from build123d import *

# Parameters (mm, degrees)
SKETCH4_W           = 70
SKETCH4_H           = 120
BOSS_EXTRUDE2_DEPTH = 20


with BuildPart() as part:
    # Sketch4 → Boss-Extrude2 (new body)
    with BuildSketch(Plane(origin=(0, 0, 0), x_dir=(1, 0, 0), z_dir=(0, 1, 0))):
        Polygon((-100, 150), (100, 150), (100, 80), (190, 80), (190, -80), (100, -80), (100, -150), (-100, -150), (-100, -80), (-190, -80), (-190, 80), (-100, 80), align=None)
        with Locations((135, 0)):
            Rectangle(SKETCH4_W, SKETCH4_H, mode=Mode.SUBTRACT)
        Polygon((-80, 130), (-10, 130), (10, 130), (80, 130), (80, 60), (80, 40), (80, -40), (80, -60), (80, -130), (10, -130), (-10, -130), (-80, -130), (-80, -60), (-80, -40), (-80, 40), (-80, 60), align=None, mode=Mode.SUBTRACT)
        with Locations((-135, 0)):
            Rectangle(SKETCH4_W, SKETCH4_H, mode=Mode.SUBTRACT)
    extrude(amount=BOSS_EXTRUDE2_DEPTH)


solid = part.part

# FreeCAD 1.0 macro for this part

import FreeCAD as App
import Part
import Sketcher

doc = App.newDocument("Part")
body = doc.addObject("PartDesign::Body", "Body")

sketch1 = body.newObject("Sketcher::SketchObject", "Sketch")
sketch1.AttachmentSupport = (doc.getObject("XZ_Plane"), [""])
sketch1.MapMode = "FlatFace"
sketch1.addGeometry([
    Part.LineSegment(App.Vector(100, -150, 0), App.Vector(-100, -150, 0)),
    Part.LineSegment(App.Vector(-100, -150, 0), App.Vector(-100, -80, 0)),
    Part.LineSegment(App.Vector(-100, -80, 0), App.Vector(-190, -80, 0)),
    Part.LineSegment(App.Vector(-190, -80, 0), App.Vector(-190, 80, 0)),
    Part.LineSegment(App.Vector(-190, 80, 0), App.Vector(-100, 80, 0)),
    Part.LineSegment(App.Vector(-100, 80, 0), App.Vector(-100, 150, 0)),
    Part.LineSegment(App.Vector(-100, 150, 0), App.Vector(100, 150, 0)),
    Part.LineSegment(App.Vector(100, 150, 0), App.Vector(100, 80, 0)),
    Part.LineSegment(App.Vector(100, 80, 0), App.Vector(190, 80, 0)),
    Part.LineSegment(App.Vector(190, 80, 0), App.Vector(190, -80, 0)),
    Part.LineSegment(App.Vector(190, -80, 0), App.Vector(100, -80, 0)),
    Part.LineSegment(App.Vector(100, -80, 0), App.Vector(100, -150, 0)),
    Part.LineSegment(App.Vector(100, 60, 0), App.Vector(100, -60, 0)),
    Part.LineSegment(App.Vector(100, -60, 0), App.Vector(170, -60, 0)),
    Part.LineSegment(App.Vector(170, -60, 0), App.Vector(170, 60, 0)),
    Part.LineSegment(App.Vector(170, 60, 0), App.Vector(100, 60, 0)),
    Part.LineSegment(App.Vector(-80, -130, 0), App.Vector(80, -130, 0)),
    Part.LineSegment(App.Vector(80, -130, 0), App.Vector(80, 130, 0)),
    Part.LineSegment(App.Vector(80, 130, 0), App.Vector(-80, 130, 0)),
    Part.LineSegment(App.Vector(-80, 130, 0), App.Vector(-80, -130, 0)),
    Part.LineSegment(App.Vector(-170, 60, 0), App.Vector(-170, -60, 0)),
    Part.LineSegment(App.Vector(-170, -60, 0), App.Vector(-100, -60, 0)),
    Part.LineSegment(App.Vector(-100, -60, 0), App.Vector(-100, 60, 0)),
    Part.LineSegment(App.Vector(-100, 60, 0), App.Vector(-170, 60, 0)),
], False)
sketch1.addConstraint([
    Sketcher.Constraint("Coincident", 0, 2, 1, 1),
    Sketcher.Constraint("Coincident", 1, 2, 2, 1),
    Sketcher.Constraint("Coincident", 2, 2, 3, 1),
    Sketcher.Constraint("Coincident", 3, 2, 4, 1),
    Sketcher.Constraint("Coincident", 4, 2, 5, 1),
    Sketcher.Constraint("Coincident", 5, 2, 6, 1),
    Sketcher.Constraint("Coincident", 6, 2, 7, 1),
    Sketcher.Constraint("Coincident", 7, 2, 8, 1),
    Sketcher.Constraint("Coincident", 8, 2, 9, 1),
    Sketcher.Constraint("Coincident", 9, 2, 10, 1),
    Sketcher.Constraint("Coincident", 10, 2, 11, 1),
    Sketcher.Constraint("Coincident", 11, 2, 0, 1),
    Sketcher.Constraint("Coincident", 12, 2, 13, 1),
    Sketcher.Constraint("Coincident", 13, 2, 14, 1),
    Sketcher.Constraint("Coincident", 14, 2, 15, 1),
    Sketcher.Constraint("Coincident", 15, 2, 12, 1),
    Sketcher.Constraint("Coincident", 16, 2, 17, 1),
    Sketcher.Constraint("Coincident", 17, 2, 18, 1),
    Sketcher.Constraint("Coincident", 18, 2, 19, 1),
    Sketcher.Constraint("Coincident", 19, 2, 16, 1),
    Sketcher.Constraint("Coincident", 20, 2, 21, 1),
    Sketcher.Constraint("Coincident", 21, 2, 22, 1),
    Sketcher.Constraint("Coincident", 22, 2, 23, 1),
    Sketcher.Constraint("Coincident", 23, 2, 20, 1),
    Sketcher.Constraint("Horizontal", 0),
    Sketcher.Constraint("Vertical", 1),
    Sketcher.Constraint("Horizontal", 2),
    Sketcher.Constraint("Vertical", 3),
    Sketcher.Constraint("Horizontal", 4),
    Sketcher.Constraint("Vertical", 5),
    Sketcher.Constraint("Horizontal", 6),
    Sketcher.Constraint("Vertical", 7),
    Sketcher.Constraint("Horizontal", 8),
    Sketcher.Constraint("Vertical", 9),
    Sketcher.Constraint("Horizontal", 10),
    Sketcher.Constraint("Vertical", 11),
    Sketcher.Constraint("Vertical", 12),
    Sketcher.Constraint("Horizontal", 13),
    Sketcher.Constraint("Vertical", 14),
    Sketcher.Constraint("Horizontal", 15),
    Sketcher.Constraint("Horizontal", 16),
    Sketcher.Constraint("Vertical", 17),
    Sketcher.Constraint("Horizontal", 18),
    Sketcher.Constraint("Vertical", 19),
    Sketcher.Constraint("Vertical", 20),
    Sketcher.Constraint("Horizontal", 21),
    Sketcher.Constraint("Vertical", 22),
    Sketcher.Constraint("Horizontal", 23),
    Sketcher.Constraint("Symmetric", 0, 2, 6, 2, -1, 1),
    Sketcher.Constraint("Symmetric", 2, 2, 8, 2, -1, 1),
    Sketcher.Constraint("Symmetric", 4, 2, 10, 2, -1, 1),
    Sketcher.Constraint("Symmetric", 16, 2, 18, 2, -1, 1),
    Sketcher.Constraint("Symmetric", 14, 2, 20, 2, -1, 1),
    Sketcher.Constraint("Symmetric", 12, 2, 22, 2, -1, 1),
    Sketcher.Constraint("Symmetric", 4, 2, 7, 2, -2),
    Sketcher.Constraint("Horizontal", 13, 2, 20, 2),
    Sketcher.Constraint("Vertical", 11, 2, 12, 2),
    Sketcher.Constraint("Equal", 23, 1),
    Sketcher.Constraint("Equal", 18, 3),
    Sketcher.Constraint("DistanceX", 0, 2, 0, 1, 200.0),
    Sketcher.Constraint("DistanceX", 2, 2, 2, 1, 90.0),
    Sketcher.Constraint("DistanceX", 13, 1, 13, 2, 70.0),
    Sketcher.Constraint("DistanceX", 16, 1, 16, 2, 160.0),
    Sketcher.Constraint("DistanceY", 12, 2, 12, 1, 120.0),
    Sketcher.Constraint("DistanceY", 17, 1, 17, 2, 260.0),
])
pad1 = body.newObject("PartDesign::Pad", "Pad")
pad1.Profile = sketch1
pad1.Length = 20
pad1.Reversed = True

doc.recompute()
